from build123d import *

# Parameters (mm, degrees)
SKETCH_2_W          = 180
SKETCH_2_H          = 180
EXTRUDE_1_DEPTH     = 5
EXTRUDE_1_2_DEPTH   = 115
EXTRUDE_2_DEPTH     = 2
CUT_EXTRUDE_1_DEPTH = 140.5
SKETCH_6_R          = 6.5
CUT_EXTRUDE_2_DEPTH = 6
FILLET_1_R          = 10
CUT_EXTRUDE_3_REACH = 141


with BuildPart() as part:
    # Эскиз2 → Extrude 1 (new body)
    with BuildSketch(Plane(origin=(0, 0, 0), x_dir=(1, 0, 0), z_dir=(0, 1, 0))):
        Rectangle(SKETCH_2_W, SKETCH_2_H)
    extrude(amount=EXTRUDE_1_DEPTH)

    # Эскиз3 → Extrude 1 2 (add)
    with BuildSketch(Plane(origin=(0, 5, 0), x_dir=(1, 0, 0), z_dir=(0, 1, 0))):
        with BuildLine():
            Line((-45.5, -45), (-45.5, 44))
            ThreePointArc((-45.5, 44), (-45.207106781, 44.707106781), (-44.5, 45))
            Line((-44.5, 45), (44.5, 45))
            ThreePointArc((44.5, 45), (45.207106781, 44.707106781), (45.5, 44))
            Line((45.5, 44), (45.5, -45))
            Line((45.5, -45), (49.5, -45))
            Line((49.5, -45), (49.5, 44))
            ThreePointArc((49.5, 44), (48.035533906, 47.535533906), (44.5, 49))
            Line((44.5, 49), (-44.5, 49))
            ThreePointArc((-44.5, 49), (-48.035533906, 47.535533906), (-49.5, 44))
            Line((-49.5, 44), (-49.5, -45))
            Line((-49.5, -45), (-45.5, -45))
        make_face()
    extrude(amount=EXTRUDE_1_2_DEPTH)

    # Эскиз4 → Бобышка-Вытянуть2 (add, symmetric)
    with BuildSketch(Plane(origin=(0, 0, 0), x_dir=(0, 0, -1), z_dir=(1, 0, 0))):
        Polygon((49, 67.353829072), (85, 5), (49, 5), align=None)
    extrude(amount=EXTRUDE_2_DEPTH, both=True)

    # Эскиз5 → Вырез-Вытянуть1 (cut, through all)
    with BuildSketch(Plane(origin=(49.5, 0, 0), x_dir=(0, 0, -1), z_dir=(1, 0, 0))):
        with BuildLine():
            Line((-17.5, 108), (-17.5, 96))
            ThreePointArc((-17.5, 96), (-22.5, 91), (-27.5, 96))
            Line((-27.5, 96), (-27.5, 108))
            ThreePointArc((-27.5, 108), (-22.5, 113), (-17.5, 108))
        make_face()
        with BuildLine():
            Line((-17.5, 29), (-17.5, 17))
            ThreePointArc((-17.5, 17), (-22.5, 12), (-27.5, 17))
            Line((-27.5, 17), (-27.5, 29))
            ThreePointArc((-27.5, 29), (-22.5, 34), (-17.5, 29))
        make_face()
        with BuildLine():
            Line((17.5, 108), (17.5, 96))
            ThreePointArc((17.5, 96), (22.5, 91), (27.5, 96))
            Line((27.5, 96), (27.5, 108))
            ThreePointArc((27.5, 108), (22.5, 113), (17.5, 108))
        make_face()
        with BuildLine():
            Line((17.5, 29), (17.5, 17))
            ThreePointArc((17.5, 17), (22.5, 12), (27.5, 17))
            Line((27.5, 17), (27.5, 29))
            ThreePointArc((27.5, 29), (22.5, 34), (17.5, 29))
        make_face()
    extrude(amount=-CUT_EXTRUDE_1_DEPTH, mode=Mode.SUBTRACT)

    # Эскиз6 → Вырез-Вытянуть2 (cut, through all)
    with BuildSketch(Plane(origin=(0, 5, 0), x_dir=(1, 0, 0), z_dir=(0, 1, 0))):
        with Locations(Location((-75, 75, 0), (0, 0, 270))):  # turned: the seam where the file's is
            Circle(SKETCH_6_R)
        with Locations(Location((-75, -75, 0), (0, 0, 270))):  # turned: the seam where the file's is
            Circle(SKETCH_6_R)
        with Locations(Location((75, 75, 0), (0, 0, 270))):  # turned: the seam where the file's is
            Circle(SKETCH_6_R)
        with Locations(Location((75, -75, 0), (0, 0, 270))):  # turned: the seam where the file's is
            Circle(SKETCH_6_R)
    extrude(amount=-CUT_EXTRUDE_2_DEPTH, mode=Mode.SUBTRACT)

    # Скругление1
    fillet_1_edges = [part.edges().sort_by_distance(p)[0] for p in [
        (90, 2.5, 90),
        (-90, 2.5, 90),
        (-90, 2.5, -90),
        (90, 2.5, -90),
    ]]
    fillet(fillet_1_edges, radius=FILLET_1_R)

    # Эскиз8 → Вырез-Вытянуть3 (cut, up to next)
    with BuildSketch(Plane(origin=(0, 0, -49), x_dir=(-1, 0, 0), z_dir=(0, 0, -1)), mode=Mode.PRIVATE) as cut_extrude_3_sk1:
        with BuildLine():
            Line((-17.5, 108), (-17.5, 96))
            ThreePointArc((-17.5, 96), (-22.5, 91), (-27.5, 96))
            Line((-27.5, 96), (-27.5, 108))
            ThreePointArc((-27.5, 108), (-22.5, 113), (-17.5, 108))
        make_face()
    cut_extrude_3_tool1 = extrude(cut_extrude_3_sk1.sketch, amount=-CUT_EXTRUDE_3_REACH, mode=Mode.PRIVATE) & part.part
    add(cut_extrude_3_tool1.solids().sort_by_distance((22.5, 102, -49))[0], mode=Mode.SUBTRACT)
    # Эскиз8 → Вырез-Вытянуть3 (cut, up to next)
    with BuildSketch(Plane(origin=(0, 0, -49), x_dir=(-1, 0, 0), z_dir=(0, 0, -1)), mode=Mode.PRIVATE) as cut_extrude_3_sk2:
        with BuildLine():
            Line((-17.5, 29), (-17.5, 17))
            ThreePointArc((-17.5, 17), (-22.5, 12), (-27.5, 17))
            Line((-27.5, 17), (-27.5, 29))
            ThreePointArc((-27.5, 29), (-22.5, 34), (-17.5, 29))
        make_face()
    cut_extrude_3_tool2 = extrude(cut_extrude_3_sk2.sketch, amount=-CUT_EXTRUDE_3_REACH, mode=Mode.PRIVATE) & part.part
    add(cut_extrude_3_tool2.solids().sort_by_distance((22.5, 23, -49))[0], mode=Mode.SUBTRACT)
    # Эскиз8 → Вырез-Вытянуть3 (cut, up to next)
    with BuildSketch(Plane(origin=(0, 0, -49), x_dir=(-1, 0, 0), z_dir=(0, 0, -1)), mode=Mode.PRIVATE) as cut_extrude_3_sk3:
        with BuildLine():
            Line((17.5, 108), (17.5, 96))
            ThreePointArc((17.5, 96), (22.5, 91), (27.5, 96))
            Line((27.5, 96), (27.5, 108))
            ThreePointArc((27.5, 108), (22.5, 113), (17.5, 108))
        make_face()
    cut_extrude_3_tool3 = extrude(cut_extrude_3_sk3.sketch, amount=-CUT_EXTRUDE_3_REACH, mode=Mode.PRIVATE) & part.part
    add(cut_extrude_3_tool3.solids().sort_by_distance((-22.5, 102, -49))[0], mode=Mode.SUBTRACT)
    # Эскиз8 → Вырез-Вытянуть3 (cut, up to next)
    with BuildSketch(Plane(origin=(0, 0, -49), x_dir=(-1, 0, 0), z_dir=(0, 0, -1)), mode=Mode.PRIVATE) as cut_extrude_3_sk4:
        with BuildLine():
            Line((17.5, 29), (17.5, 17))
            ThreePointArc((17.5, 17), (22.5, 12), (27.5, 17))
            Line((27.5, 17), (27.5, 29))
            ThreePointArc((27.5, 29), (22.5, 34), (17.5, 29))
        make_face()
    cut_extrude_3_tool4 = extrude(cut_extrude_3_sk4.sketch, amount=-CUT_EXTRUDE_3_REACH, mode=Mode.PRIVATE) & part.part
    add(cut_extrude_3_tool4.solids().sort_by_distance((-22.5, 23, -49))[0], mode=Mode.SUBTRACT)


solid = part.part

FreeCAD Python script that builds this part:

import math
import FreeCAD as App
import Part
import Sketcher
from FreeCAD import Vector
Q = App.Units.Quantity


def edges_at(feature, points):
    """Names of the edges that pass closest to the given points."""
    edges = feature.Shape.Edges
    near = lambda p: min(range(len(edges)), key=lambda i: edges[i].distToShape(Part.Vertex(*p))[0])
    return sorted({f"Edge{near(p) + 1}" for p in points})

doc = App.newDocument("Part")
body = doc.addObject("PartDesign::Body", "Body")

# Sketch on XZ plane
sketch1 = body.newObject("Sketcher::SketchObject", "Sketch")
sketch1.AttachmentSupport = (doc.getObject("XZ_Plane"), [""])
sketch1.MapMode = "FlatFace"
sketch1.addGeometry([
    Part.LineSegment(Vector(-90, -90, 0), Vector(-90, 90, 0)),
    Part.LineSegment(Vector(-90, 90, 0), Vector(90, 90, 0)),
    Part.LineSegment(Vector(90, 90, 0), Vector(90, -90, 0)),
    Part.LineSegment(Vector(90, -90, 0), Vector(-90, -90, 0)),
], False)
sketch1.addConstraint([
    Sketcher.Constraint("Coincident", 0, 2, 1, 1),
    Sketcher.Constraint("Coincident", 1, 2, 2, 1),
    Sketcher.Constraint("Coincident", 2, 2, 3, 1),
    Sketcher.Constraint("Coincident", 3, 2, 0, 1),
    Sketcher.Constraint("Vertical", 0),
    Sketcher.Constraint("Horizontal", 1),
    Sketcher.Constraint("Vertical", 2),
    Sketcher.Constraint("Horizontal", 3),
    Sketcher.Constraint("Symmetric", 0, 2, 2, 2, -1, 1),
    Sketcher.Constraint("Equal", 3, 0),
    Sketcher.Constraint("DistanceX", 1, 1, 1, 2, Q("180 mm")),
])
pad1 = body.newObject("PartDesign::Pad", "Pad")
pad1.Profile = sketch1
pad1.Length = 5
pad1.Reversed = True

# Sketch on XZ plane
sketch2 = body.newObject("Sketcher::SketchObject", "Sketch001")
sketch2.AttachmentSupport = (doc.getObject("XZ_Plane"), [""])
sketch2.MapMode = "FlatFace"
sketch2.AttachmentOffset = App.Placement(Vector(0, 0, -5), App.Rotation())
sketch2.addGeometry([
    Part.LineSegment(Vector(-45.5, 45, 0), Vector(-45.5, -44, 0)),  # 0
    Part.ArcOfCircle(Part.Circle(Vector(-44.5, -44, 0), Vector(0, 0, 1), 1), math.radians(-180), math.radians(-90)),  # 1
    Part.LineSegment(Vector(-44.5, -45, 0), Vector(44.5, -45, 0)),  # 2
    Part.ArcOfCircle(Part.Circle(Vector(44.5, -44, 0), Vector(0, 0, 1), 1), math.radians(-90), math.radians(0)),  # 3
    Part.LineSegment(Vector(45.5, -44, 0), Vector(45.5, 45, 0)),  # 4
    Part.LineSegment(Vector(45.5, 45, 0), Vector(49.5, 45, 0)),  # 5
    Part.LineSegment(Vector(49.5, 45, 0), Vector(49.5, -44, 0)),  # 6
    Part.ArcOfCircle(Part.Circle(Vector(44.5, -44, 0), Vector(0, 0, 1), 5), math.radians(-90), math.radians(0)),  # 7
    Part.LineSegment(Vector(44.5, -49, 0), Vector(-44.5, -49, 0)),  # 8
    Part.ArcOfCircle(Part.Circle(Vector(-44.5, -44, 0), Vector(0, 0, 1), 5), math.radians(180), math.radians(270)),  # 9
    Part.LineSegment(Vector(-49.5, -44, 0), Vector(-49.5, 45, 0)),  # 10
    Part.LineSegment(Vector(-49.5, 45, 0), Vector(-45.5, 45, 0)),  # 11
], False)
sketch2.addConstraint([
    Sketcher.Constraint("Tangent", 0, 2, 1, 1),
    Sketcher.Constraint("Tangent", 1, 2, 2, 1),
    Sketcher.Constraint("Tangent", 2, 2, 3, 1),
    Sketcher.Constraint("Tangent", 3, 2, 4, 1),
    Sketcher.Constraint("Coincident", 4, 2, 5, 1),
    Sketcher.Constraint("Coincident", 5, 2, 6, 1),
    Sketcher.Constraint("Tangent", 6, 2, 7, 2),
    Sketcher.Constraint("Tangent", 7, 1, 8, 1),
    Sketcher.Constraint("Tangent", 8, 2, 9, 2),
    Sketcher.Constraint("Tangent", 9, 1, 10, 1),
    Sketcher.Constraint("Coincident", 10, 2, 11, 1),
    Sketcher.Constraint("Coincident", 11, 2, 0, 1),
    Sketcher.Constraint("Vertical", 0),
    Sketcher.Constraint("Horizontal", 2),
    Sketcher.Constraint("Vertical", 4),
    Sketcher.Constraint("Horizontal", 5),
    Sketcher.Constraint("Vertical", 6),
    Sketcher.Constraint("Horizontal", 8),
    Sketcher.Constraint("Vertical", 10),
    Sketcher.Constraint("Horizontal", 11),
    Sketcher.Constraint("Coincident", 7, 3, 3, 3),
    Sketcher.Constraint("Coincident", 9, 3, 1, 3),
    Sketcher.Constraint("Equal", 1, 3),
    Sketcher.Constraint("Symmetric", 5, 2, 10, 2, -2),
    Sketcher.Constraint("Equal", 8, 0),
    Sketcher.Constraint("Radius", 1, Q("1 mm")),
    Sketcher.Constraint("Radius", 7, Q("5 mm")),
    Sketcher.Constraint("DistanceX", 2, 1, 2, 2, Q("89 mm")),
    Sketcher.Constraint("DistanceY", 1, 3, -1, 1, Q("44 mm")),
])
pad2 = body.newObject("PartDesign::Pad", "Pad001")
pad2.Profile = sketch2
pad2.Length = 115
pad2.Reversed = True

# Sketch on YZ plane
sketch3 = body.newObject("Sketcher::SketchObject", "Sketch002")
sketch3.AttachmentSupport = (doc.getObject("YZ_Plane"), [""])
sketch3.MapMode = "FlatFace"
sketch3.addGeometry([
    Part.LineSegment(Vector(5, -85, 0), Vector(67, -49, 0)),
    Part.LineSegment(Vector(67, -49, 0), Vector(5, -49, 0)),
    Part.LineSegment(Vector(5, -49, 0), Vector(5, -85, 0)),
], False)
sketch3.addConstraint([
    Sketcher.Constraint("Coincident", 0, 2, 1, 1),
    Sketcher.Constraint("Coincident", 1, 2, 2, 1),
    Sketcher.Constraint("Coincident", 2, 2, 0, 1),
    Sketcher.Constraint("Horizontal", 1),
    Sketcher.Constraint("Vertical", 2),
    Sketcher.Constraint("DistanceY", 2, 2, 2, 1, Q("36 mm")),
    Sketcher.Constraint("Angle", 0, Q("30 deg")),
    Sketcher.Constraint("DistanceY", 0, 2, -1, 1, Q("49 mm")),
    Sketcher.Constraint("DistanceX", -1, 1, 1, 2, Q("5 mm")),
])
pad3 = body.newObject("PartDesign::Pad", "Pad002")
pad3.Profile = sketch3
pad3.Length = 4
pad3.Midplane = True

# Sketch on YZ plane
sketch4 = body.newObject("Sketcher::SketchObject", "Sketch003")
sketch4.AttachmentSupport = (doc.getObject("YZ_Plane"), [""])
sketch4.MapMode = "FlatFace"
sketch4.AttachmentOffset = App.Placement(Vector(0, 0, 49.5), App.Rotation())
sketch4.addGeometry([
    Part.LineSegment(Vector(96, 18, 0), Vector(108, 18, 0)),  # 0
    Part.ArcOfCircle(Part.Circle(Vector(108, 22, 0), Vector(0, 0, 1), 5), math.radians(-90), math.radians(90)),  # 1
    Part.LineSegment(Vector(108, 28, 0), Vector(96, 28, 0)),  # 2
    Part.ArcOfCircle(Part.Circle(Vector(96, 22, 0), Vector(0, 0, 1), 5), math.radians(90), math.radians(270)),  # 3
    Part.LineSegment(Vector(17, 18, 0), Vector(29, 18, 0)),  # 4
    Part.ArcOfCircle(Part.Circle(Vector(29, 22, 0), Vector(0, 0, 1), 5), math.radians(-90), math.radians(90)),  # 5
    Part.LineSegment(Vector(29, 28, 0), Vector(17, 28, 0)),  # 6
    Part.ArcOfCircle(Part.Circle(Vector(17, 22, 0), Vector(0, 0, 1), 5), math.radians(90), math.radians(270)),  # 7
    Part.LineSegment(Vector(108, -18, 0), Vector(96, -18, 0)),  # 8
    Part.ArcOfCircle(Part.Circle(Vector(96, -22, 0), Vector(0, 0, 1), 5), math.radians(90), math.radians(270)),  # 9
    Part.LineSegment(Vector(96, -28, 0), Vector(108, -28, 0)),  # 10
    Part.ArcOfCircle(Part.Circle(Vector(108, -22, 0), Vector(0, 0, 1), 5), math.radians(-90), math.radians(90)),  # 11
    Part.LineSegment(Vector(29, -18, 0), Vector(17, -18, 0)),  # 12
    Part.ArcOfCircle(Part.Circle(Vector(17, -22, 0), Vector(0, 0, 1), 5), math.radians(90), math.radians(270)),  # 13
    Part.LineSegment(Vector(17, -28, 0), Vector(29, -28, 0)),  # 14
    Part.ArcOfCircle(Part.Circle(Vector(29, -22, 0), Vector(0, 0, 1), 5), math.radians(-90), math.radians(90)),  # 15
], False)
sketch4.addConstraint([
    Sketcher.Constraint("Tangent", 0, 2, 1, 1),
    Sketcher.Constraint("Tangent", 1, 2, 2, 1),
    Sketcher.Constraint("Tangent", 2, 2, 3, 1),
    Sketcher.Constraint("Tangent", 3, 2, 0, 1),
    Sketcher.Constraint("Tangent", 4, 2, 5, 1),
    Sketcher.Constraint("Tangent", 5, 2, 6, 1),
    Sketcher.Constraint("Tangent", 6, 2, 7, 1),
    Sketcher.Constraint("Tangent", 7, 2, 4, 1),
    Sketcher.Constraint("Tangent", 8, 2, 9, 1),
    Sketcher.Constraint("Tangent", 9, 2, 10, 1),
    Sketcher.Constraint("Tangent", 10, 2, 11, 1),
    Sketcher.Constraint("Tangent", 11, 2, 8, 1),
    Sketcher.Constraint("Tangent", 12, 2, 13, 1),
    Sketcher.Constraint("Tangent", 13, 2, 14, 1),
    Sketcher.Constraint("Tangent", 14, 2, 15, 1),
    Sketcher.Constraint("Tangent", 15, 2, 12, 1),
    Sketcher.Constraint("Horizontal", 0),
    Sketcher.Constraint("Horizontal", 2),
    Sketcher.Constraint("Horizontal", 4),
    Sketcher.Constraint("Horizontal", 6),
    Sketcher.Constraint("Horizontal", 8),
    Sketcher.Constraint("Horizontal", 10),
    Sketcher.Constraint("Horizontal", 12),
    Sketcher.Constraint("Horizontal", 14),
    Sketcher.Constraint("Equal", 3, 5),
    Sketcher.Constraint("Equal", 7, 9),
    Sketcher.Constraint("Equal", 11, 13),
    Sketcher.Constraint("Symmetric", 3, 3, 9, 3, -1),
    Sketcher.Constraint("Symmetric", 7, 3, 13, 3, -1),
    Sketcher.Constraint("Horizontal", 3, 3, 5, 3),
    Sketcher.Constraint("Vertical", 1, 3, 11, 3),
    Sketcher.Constraint("Vertical", 5, 3, 15, 3),
    Sketcher.Constraint("Equal", 2, 4),
    Sketcher.Constraint("Radius", 1, Q("5 mm")),
    Sketcher.Constraint("DistanceX", 0, 1, 0, 2, Q("12 mm")),
    Sketcher.Constraint("DistanceX", -1, 1, 1, 3, Q("108 mm")),
    Sketcher.Constraint("DistanceX", -1, 1, 5, 3, Q("29 mm")),
    Sketcher.Constraint("DistanceY", 9, 3, 3, 3, Q("45 mm")),
])
pocket1 = body.newObject("PartDesign::Pocket", "Pocket")
pocket1.Profile = sketch4
pocket1.Type = "ThroughAll"

# Sketch on XZ plane
sketch5 = body.newObject("Sketcher::SketchObject", "Sketch004")
sketch5.AttachmentSupport = (doc.getObject("XZ_Plane"), [""])
sketch5.MapMode = "FlatFace"
sketch5.AttachmentOffset = App.Placement(Vector(0, 0, -5), App.Rotation())
sketch5.addGeometry([
    Part.Circle(Vector(-75, -75, 0), Vector(0, 0, 1), 6),
    Part.Circle(Vector(-75, 75, 0), Vector(0, 0, 1), 6),
    Part.Circle(Vector(75, -75, 0), Vector(0, 0, 1), 6),
    Part.Circle(Vector(75, 75, 0), Vector(0, 0, 1), 6),
], False)
sketch5.addConstraint([
    Sketcher.Constraint("Equal", 0, 1),
    Sketcher.Constraint("Equal", 1, 2),
    Sketcher.Constraint("Equal", 2, 3),
    Sketcher.Constraint("Symmetric", 1, 3, 2, 3, -1, 1),
    Sketcher.Constraint("Symmetric", 0, 3, 3, 3, -1, 1),
    Sketcher.Constraint("Symmetric", 0, 3, 2, 3, -2),
    Sketcher.Constraint("Diameter", 0, Q("13 mm")),
    Sketcher.Constraint("DistanceX", 0, 3, -1, 1, Q("75 mm")),
    Sketcher.Constraint("DistanceY", 0, 3, -1, 1, Q("75 mm")),
])
pocket2 = body.newObject("PartDesign::Pocket", "Pocket001")
pocket2.Profile = sketch5
pocket2.Type = "ThroughAll"
pocket2.Reversed = True
doc.recompute()

fillet = body.newObject("PartDesign::Fillet", "Fillet")
fillet.Base = (pocket2, edges_at(pocket2, [
    (90, 2.5, 90),
    (-90, 2.5, 90),
    (-90, 2.5, -90),
    (90, 2.5, -90),
]))
fillet.Radius = 10

# Sketch on XY plane
sketch6 = body.newObject("Sketcher::SketchObject", "Sketch005")
sketch6.AttachmentSupport = (doc.getObject("XY_Plane"), [""])
sketch6.MapMode = "FlatFace"
sketch6.AttachmentOffset = App.Placement(Vector(0, 0, -49), App.Rotation())
sketch6.addGeometry([
    Part.LineSegment(Vector(18, 96, 0), Vector(18, 108, 0)),
    Part.ArcOfCircle(Part.Circle(Vector(22, 108, 0), Vector(0, 0, 1), 5), math.radians(0), math.radians(180)),
    Part.LineSegment(Vector(28, 108, 0), Vector(28, 96, 0)),
    Part.ArcOfCircle(Part.Circle(Vector(22, 96, 0), Vector(0, 0, 1), 5), math.radians(180), math.radians(360)),
], False)
sketch6.addConstraint([
    Sketcher.Constraint("Tangent", 0, 2, 1, 2),
    Sketcher.Constraint("Tangent", 1, 1, 2, 1),
    Sketcher.Constraint("Tangent", 2, 2, 3, 2),
    Sketcher.Constraint("Tangent", 3, 1, 0, 1),
    Sketcher.Constraint("Vertical", 0),
    Sketcher.Constraint("Vertical", 2),
    Sketcher.Constraint("Radius", 1, Q("5 mm")),
    Sketcher.Constraint("DistanceY", 0, 1, 0, 2, Q("12 mm")),
    Sketcher.Constraint("DistanceY", -1, 1, 1, 3, Q("108 mm")),
    Sketcher.Constraint("DistanceX", -1, 1, 1, 3, Q("22.5 mm")),
])
pocket3 = body.newObject("PartDesign::Pocket", "Pocket002")
pocket3.Profile = sketch6
pocket3.Type = "UpToFirst"
pocket3.Reversed = True

# Sketch on XY plane
sketch7 = body.newObject("Sketcher::SketchObject", "Sketch006")
sketch7.AttachmentSupport = (doc.getObject("XY_Plane"), [""])
sketch7.MapMode = "FlatFace"
sketch7.AttachmentOffset = App.Placement(Vector(0, 0, -49), App.Rotation())
sketch7.addGeometry([
    Part.LineSegment(Vector(18, 17, 0), Vector(18, 29, 0)),
    Part.ArcOfCircle(Part.Circle(Vector(22, 29, 0), Vector(0, 0, 1), 5), math.radians(0), math.radians(180)),
    Part.LineSegment(Vector(28, 29, 0), Vector(28, 17, 0)),
    Part.ArcOfCircle(Part.Circle(Vector(22, 17, 0), Vector(0, 0, 1), 5), math.radians(180), math.radians(360)),
], False)
sketch7.addConstraint([
    Sketcher.Constraint("Tangent", 0, 2, 1, 2),
    Sketcher.Constraint("Tangent", 1, 1, 2, 1),
    Sketcher.Constraint("Tangent", 2, 2, 3, 2),
    Sketcher.Constraint("Tangent", 3, 1, 0, 1),
    Sketcher.Constraint("Vertical", 0),
    Sketcher.Constraint("Vertical", 2),
    Sketcher.Constraint("Radius", 1, Q("5 mm")),
    Sketcher.Constraint("DistanceY", 0, 1, 0, 2, Q("12 mm")),
    Sketcher.Constraint("DistanceY", -1, 1, 1, 3, Q("29 mm")),
    Sketcher.Constraint("DistanceX", -1, 1, 1, 3, Q("22.5 mm")),
])
pocket4 = body.newObject("PartDesign::Pocket", "Pocket003")
pocket4.Profile = sketch7
pocket4.Type = "UpToFirst"
pocket4.Reversed = True

# Sketch on XY plane
sketch8 = body.newObject("Sketcher::SketchObject", "Sketch007")
sketch8.AttachmentSupport = (doc.getObject("XY_Plane"), [""])
sketch8.MapMode = "FlatFace"
sketch8.AttachmentOffset = App.Placement(Vector(0, 0, -49), App.Rotation())
sketch8.addGeometry([
    Part.LineSegment(Vector(-18, 108, 0), Vector(-18, 96, 0)),
    Part.ArcOfCircle(Part.Circle(Vector(-22, 96, 0), Vector(0, 0, 1), 5), math.radians(180), math.radians(360)),
    Part.LineSegment(Vector(-28, 96, 0), Vector(-28, 108, 0)),
    Part.ArcOfCircle(Part.Circle(Vector(-22, 108, 0), Vector(0, 0, 1), 5), math.radians(0), math.radians(180)),
], False)
sketch8.addConstraint([
    Sketcher.Constraint("Tangent", 0, 2, 1, 2),
    Sketcher.Constraint("Tangent", 1, 1, 2, 1),
    Sketcher.Constraint("Tangent", 2, 2, 3, 2),
    Sketcher.Constraint("Tangent", 3, 1, 0, 1),
    Sketcher.Constraint("Vertical", 0),
    Sketcher.Constraint("Vertical", 2),
    Sketcher.Constraint("Radius", 1, Q("5 mm")),
    Sketcher.Constraint("DistanceY", 0, 2, 0, 1, Q("12 mm")),
    Sketcher.Constraint("DistanceY", -1, 1, 1, 3, Q("96 mm")),
    Sketcher.Constraint("DistanceX", 1, 3, -1, 1, Q("22.5 mm")),
])
pocket5 = body.newObject("PartDesign::Pocket", "Pocket004")
pocket5.Profile = sketch8
pocket5.Type = "UpToFirst"
pocket5.Reversed = True

# Sketch on XY plane
sketch9 = body.newObject("Sketcher::SketchObject", "Sketch008")
sketch9.AttachmentSupport = (doc.getObject("XY_Plane"), [""])
sketch9.MapMode = "FlatFace"
sketch9.AttachmentOffset = App.Placement(Vector(0, 0, -49), App.Rotation())
sketch9.addGeometry([
    Part.LineSegment(Vector(-18, 29, 0), Vector(-18, 17, 0)),
    Part.ArcOfCircle(Part.Circle(Vector(-22, 17, 0), Vector(0, 0, 1), 5), math.radians(180), math.radians(360)),
    Part.LineSegment(Vector(-28, 17, 0), Vector(-28, 29, 0)),
    Part.ArcOfCircle(Part.Circle(Vector(-22, 29, 0), Vector(0, 0, 1), 5), math.radians(0), math.radians(180)),
], False)
sketch9.addConstraint([
    Sketcher.Constraint("Tangent", 0, 2, 1, 2),
    Sketcher.Constraint("Tangent", 1, 1, 2, 1),
    Sketcher.Constraint("Tangent", 2, 2, 3, 2),
    Sketcher.Constraint("Tangent", 3, 1, 0, 1),
    Sketcher.Constraint("Vertical", 0),
    Sketcher.Constraint("Vertical", 2),
    Sketcher.Constraint("Radius", 1, Q("5 mm")),
    Sketcher.Constraint("DistanceY", 0, 2, 0, 1, Q("12 mm")),
    Sketcher.Constraint("DistanceY", -1, 1, 1, 3, Q("17 mm")),
    Sketcher.Constraint("DistanceX", 1, 3, -1, 1, Q("22.5 mm")),
])
pocket6 = body.newObject("PartDesign::Pocket", "Pocket005")
pocket6.Profile = sketch9
pocket6.Type = "UpToFirst"
pocket6.Reversed = True

doc.recompute()
